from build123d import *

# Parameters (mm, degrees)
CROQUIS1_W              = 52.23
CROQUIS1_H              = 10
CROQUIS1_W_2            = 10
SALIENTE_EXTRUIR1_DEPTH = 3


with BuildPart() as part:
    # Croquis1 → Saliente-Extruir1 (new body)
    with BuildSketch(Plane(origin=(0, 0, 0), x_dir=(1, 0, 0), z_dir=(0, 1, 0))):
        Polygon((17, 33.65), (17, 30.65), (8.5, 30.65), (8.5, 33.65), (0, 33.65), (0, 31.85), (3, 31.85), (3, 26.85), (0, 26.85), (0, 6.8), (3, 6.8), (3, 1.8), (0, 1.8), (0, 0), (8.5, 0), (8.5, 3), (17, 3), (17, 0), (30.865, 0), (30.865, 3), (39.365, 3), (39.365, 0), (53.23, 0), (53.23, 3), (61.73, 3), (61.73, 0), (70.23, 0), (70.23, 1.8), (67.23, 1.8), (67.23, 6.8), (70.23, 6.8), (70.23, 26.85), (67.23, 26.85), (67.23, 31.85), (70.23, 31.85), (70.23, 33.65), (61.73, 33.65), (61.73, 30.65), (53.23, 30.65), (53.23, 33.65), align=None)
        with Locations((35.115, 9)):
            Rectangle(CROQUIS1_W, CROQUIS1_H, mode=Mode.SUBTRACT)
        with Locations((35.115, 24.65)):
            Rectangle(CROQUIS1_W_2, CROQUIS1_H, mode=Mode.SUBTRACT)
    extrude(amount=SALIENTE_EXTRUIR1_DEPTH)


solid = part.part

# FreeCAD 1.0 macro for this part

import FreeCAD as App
import Part
import Sketcher

doc = App.newDocument("Part")
body = doc.addObject("PartDesign::Body", "Body")

sketch1 = doc.addObject("Sketcher::SketchObject", "Sketch")
body.addObject(sketch1)
sketch1.AttachmentSupport = (doc.XZ_Plane, [""])
sketch1.MapMode = "FlatFace"
sketch1.addGeometry(Part.LineSegment(App.Vector(17, -33.6, 0), App.Vector(17, -30.6, 0)), False)
sketch1.addGeometry(Part.LineSegment(App.Vector(17, -30.6, 0), App.Vector(8.5, -30.6, 0)), False)
sketch1.addGeometry(Part.LineSegment(App.Vector(8.5, -30.6, 0), App.Vector(8.5, -33.6, 0)), False)
sketch1.addGeometry(Part.LineSegment(App.Vector(8.5, -33.6, 0), App.Vector(0, -33.6, 0)), False)
sketch1.addGeometry(Part.LineSegment(App.Vector(0, -33.6, 0), App.Vector(0, -31.9, 0)), False)
sketch1.addGeometry(Part.LineSegment(App.Vector(0, -31.9, 0), App.Vector(3, -31.9, 0)), False)
sketch1.addGeometry(Part.LineSegment(App.Vector(3, -31.9, 0), App.Vector(3, -26.9, 0)), False)
sketch1.addGeometry(Part.LineSegment(App.Vector(3, -26.9, 0), App.Vector(0, -26.9, 0)), False)
sketch1.addGeometry(Part.LineSegment(App.Vector(0, -26.9, 0), App.Vector(0, -6.8, 0)), False)
sketch1.addGeometry(Part.LineSegment(App.Vector(0, -6.8, 0), App.Vector(3, -6.8, 0)), False)
sketch1.addGeometry(Part.LineSegment(App.Vector(3, -6.8, 0), App.Vector(3, -1.8, 0)), False)
sketch1.addGeometry(Part.LineSegment(App.Vector(3, -1.8, 0), App.Vector(0, -1.8, 0)), False)
sketch1.addGeometry(Part.LineSegment(App.Vector(0, -1.8, 0), App.Vector(0, 0, 0)), False)
sketch1.addGeometry(Part.LineSegment(App.Vector(0, 0, 0), App.Vector(8.5, 0, 0)), False)
sketch1.addGeometry(Part.LineSegment(App.Vector(8.5, 0, 0), App.Vector(8.5, -3, 0)), False)
sketch1.addGeometry(Part.LineSegment(App.Vector(8.5, -3, 0), App.Vector(17, -3, 0)), False)
sketch1.addGeometry(Part.LineSegment(App.Vector(17, -3, 0), App.Vector(17, 0, 0)), False)
sketch1.addGeometry(Part.LineSegment(App.Vector(17, 0, 0), App.Vector(30.9, 0, 0)), False)
sketch1.addGeometry(Part.LineSegment(App.Vector(30.9, 0, 0), App.Vector(30.9, -3, 0)), False)
sketch1.addGeometry(Part.LineSegment(App.Vector(30.9, -3, 0), App.Vector(39.4, -3, 0)), False)
sketch1.addGeometry(Part.LineSegment(App.Vector(39.4, -3, 0), App.Vector(39.4, 0, 0)), False)
sketch1.addGeometry(Part.LineSegment(App.Vector(39.4, 0, 0), App.Vector(53.2, 0, 0)), False)
sketch1.addGeometry(Part.LineSegment(App.Vector(53.2, 0, 0), App.Vector(53.2, -3, 0)), False)
sketch1.addGeometry(Part.LineSegment(App.Vector(53.2, -3, 0), App.Vector(61.7, -3, 0)), False)
sketch1.addGeometry(Part.LineSegment(App.Vector(61.7, -3, 0), App.Vector(61.7, 0, 0)), False)
sketch1.addGeometry(Part.LineSegment(App.Vector(61.7, 0, 0), App.Vector(70.2, 0, 0)), False)
sketch1.addGeometry(Part.LineSegment(App.Vector(70.2, 0, 0), App.Vector(70.2, -1.8, 0)), False)
sketch1.addGeometry(Part.LineSegment(App.Vector(70.2, -1.8, 0), App.Vector(67.2, -1.8, 0)), False)
sketch1.addGeometry(Part.LineSegment(App.Vector(67.2, -1.8, 0), App.Vector(67.2, -6.8, 0)), False)
sketch1.addGeometry(Part.LineSegment(App.Vector(67.2, -6.8, 0), App.Vector(70.2, -6.8, 0)), False)
sketch1.addGeometry(Part.LineSegment(App.Vector(70.2, -6.8, 0), App.Vector(70.2, -26.9, 0)), False)
sketch1.addGeometry(Part.LineSegment(App.Vector(70.2, -26.9, 0), App.Vector(67.2, -26.9, 0)), False)
sketch1.addGeometry(Part.LineSegment(App.Vector(67.2, -26.9, 0), App.Vector(67.2, -31.9, 0)), False)
sketch1.addGeometry(Part.LineSegment(App.Vector(67.2, -31.9, 0), App.Vector(70.2, -31.9, 0)), False)
sketch1.addGeometry(Part.LineSegment(App.Vector(70.2, -31.9, 0), App.Vector(70.2, -33.6, 0)), False)
sketch1.addGeometry(Part.LineSegment(App.Vector(70.2, -33.6, 0), App.Vector(61.7, -33.6, 0)), False)
sketch1.addGeometry(Part.LineSegment(App.Vector(61.7, -33.6, 0), App.Vector(61.7, -30.6, 0)), False)
sketch1.addGeometry(Part.LineSegment(App.Vector(61.7, -30.6, 0), App.Vector(53.2, -30.6, 0)), False)
sketch1.addGeometry(Part.LineSegment(App.Vector(53.2, -30.6, 0), App.Vector(53.2, -33.6, 0)), False)
sketch1.addGeometry(Part.LineSegment(App.Vector(53.2, -33.6, 0), App.Vector(17, -33.6, 0)), False)
sketch1.addGeometry(Part.LineSegment(App.Vector(61.2, -4, 0), App.Vector(9, -4, 0)), False)
sketch1.addGeometry(Part.LineSegment(App.Vector(9, -4, 0), App.Vector(9, -14, 0)), False)
sketch1.addGeometry(Part.LineSegment(App.Vector(9, -14, 0), App.Vector(61.2, -14, 0)), False)
sketch1.addGeometry(Part.LineSegment(App.Vector(61.2, -14, 0), App.Vector(61.2, -4, 0)), False)
sketch1.addGeometry(Part.LineSegment(App.Vector(40.1, -19.6, 0), App.Vector(30.1, -19.6, 0)), False)
sketch1.addGeometry(Part.LineSegment(App.Vector(30.1, -19.6, 0), App.Vector(30.1, -29.6, 0)), False)
sketch1.addGeometry(Part.LineSegment(App.Vector(30.1, -29.6, 0), App.Vector(40.1, -29.6, 0)), False)
sketch1.addGeometry(Part.LineSegment(App.Vector(40.1, -29.6, 0), App.Vector(40.1, -19.6, 0)), False)
sketch1.addConstraint(Sketcher.Constraint("Coincident", 0, 2, 1, 1))
sketch1.addConstraint(Sketcher.Constraint("Coincident", 1, 2, 2, 1))
sketch1.addConstraint(Sketcher.Constraint("Coincident", 2, 2, 3, 1))
sketch1.addConstraint(Sketcher.Constraint("Coincident", 3, 2, 4, 1))
sketch1.addConstraint(Sketcher.Constraint("Coincident", 4, 2, 5, 1))
sketch1.addConstraint(Sketcher.Constraint("Coincident", 5, 2, 6, 1))
sketch1.addConstraint(Sketcher.Constraint("Coincident", 6, 2, 7, 1))
sketch1.addConstraint(Sketcher.Constraint("Coincident", 7, 2, 8, 1))
sketch1.addConstraint(Sketcher.Constraint("Coincident", 8, 2, 9, 1))
sketch1.addConstraint(Sketcher.Constraint("Coincident", 9, 2, 10, 1))
sketch1.addConstraint(Sketcher.Constraint("Coincident", 10, 2, 11, 1))
sketch1.addConstraint(Sketcher.Constraint("Coincident", 11, 2, 12, 1))
sketch1.addConstraint(Sketcher.Constraint("Coincident", 12, 2, 13, 1))
sketch1.addConstraint(Sketcher.Constraint("Coincident", 13, 2, 14, 1))
sketch1.addConstraint(Sketcher.Constraint("Coincident", 14, 2, 15, 1))
sketch1.addConstraint(Sketcher.Constraint("Coincident", 15, 2, 16, 1))
sketch1.addConstraint(Sketcher.Constraint("Coincident", 16, 2, 17, 1))
sketch1.addConstraint(Sketcher.Constraint("Coincident", 17, 2, 18, 1))
sketch1.addConstraint(Sketcher.Constraint("Coincident", 18, 2, 19, 1))
sketch1.addConstraint(Sketcher.Constraint("Coincident", 19, 2, 20, 1))
sketch1.addConstraint(Sketcher.Constraint("Coincident", 20, 2, 21, 1))
sketch1.addConstraint(Sketcher.Constraint("Coincident", 21, 2, 22, 1))
sketch1.addConstraint(Sketcher.Constraint("Coincident", 22, 2, 23, 1))
sketch1.addConstraint(Sketcher.Constraint("Coincident", 23, 2, 24, 1))
sketch1.addConstraint(Sketcher.Constraint("Coincident", 24, 2, 25, 1))
sketch1.addConstraint(Sketcher.Constraint("Coincident", 25, 2, 26, 1))
sketch1.addConstraint(Sketcher.Constraint("Coincident", 26, 2, 27, 1))
sketch1.addConstraint(Sketcher.Constraint("Coincident", 27, 2, 28, 1))
sketch1.addConstraint(Sketcher.Constraint("Coincident", 28, 2, 29, 1))
sketch1.addConstraint(Sketcher.Constraint("Coincident", 29, 2, 30, 1))
sketch1.addConstraint(Sketcher.Constraint("Coincident", 30, 2, 31, 1))
sketch1.addConstraint(Sketcher.Constraint("Coincident", 31, 2, 32, 1))
sketch1.addConstraint(Sketcher.Constraint("Coincident", 32, 2, 33, 1))
sketch1.addConstraint(Sketcher.Constraint("Coincident", 33, 2, 34, 1))
sketch1.addConstraint(Sketcher.Constraint("Coincident", 34, 2, 35, 1))
sketch1.addConstraint(Sketcher.Constraint("Coincident", 35, 2, 36, 1))
sketch1.addConstraint(Sketcher.Constraint("Coincident", 36, 2, 37, 1))
sketch1.addConstraint(Sketcher.Constraint("Coincident", 37, 2, 38, 1))
sketch1.addConstraint(Sketcher.Constraint("Coincident", 38, 2, 39, 1))
sketch1.addConstraint(Sketcher.Constraint("Coincident", 39, 2, 0, 1))
sketch1.addConstraint(Sketcher.Constraint("Coincident", 40, 2, 41, 1))
sketch1.addConstraint(Sketcher.Constraint("Coincident", 41, 2, 42, 1))
sketch1.addConstraint(Sketcher.Constraint("Coincident", 42, 2, 43, 1))
sketch1.addConstraint(Sketcher.Constraint("Coincident", 43, 2, 40, 1))
sketch1.addConstraint(Sketcher.Constraint("Coincident", 44, 2, 45, 1))
sketch1.addConstraint(Sketcher.Constraint("Coincident", 45, 2, 46, 1))
sketch1.addConstraint(Sketcher.Constraint("Coincident", 46, 2, 47, 1))
sketch1.addConstraint(Sketcher.Constraint("Coincident", 47, 2, 44, 1))
sketch1.addConstraint(Sketcher.Constraint("Vertical", 0))
sketch1.addConstraint(Sketcher.Constraint("Horizontal", 1))
sketch1.addConstraint(Sketcher.Constraint("Vertical", 2))
sketch1.addConstraint(Sketcher.Constraint("Horizontal", 3))
sketch1.addConstraint(Sketcher.Constraint("Vertical", 4))
sketch1.addConstraint(Sketcher.Constraint("Horizontal", 5))
sketch1.addConstraint(Sketcher.Constraint("Vertical", 6))
sketch1.addConstraint(Sketcher.Constraint("Horizontal", 7))
sketch1.addConstraint(Sketcher.Constraint("Vertical", 8))
sketch1.addConstraint(Sketcher.Constraint("Horizontal", 9))
sketch1.addConstraint(Sketcher.Constraint("Vertical", 10))
sketch1.addConstraint(Sketcher.Constraint("Horizontal", 11))
sketch1.addConstraint(Sketcher.Constraint("Vertical", 12))
sketch1.addConstraint(Sketcher.Constraint("Horizontal", 13))
sketch1.addConstraint(Sketcher.Constraint("Vertical", 14))
sketch1.addConstraint(Sketcher.Constraint("Horizontal", 15))
sketch1.addConstraint(Sketcher.Constraint("Vertical", 16))
sketch1.addConstraint(Sketcher.Constraint("Horizontal", 17))
sketch1.addConstraint(Sketcher.Constraint("Vertical", 18))
sketch1.addConstraint(Sketcher.Constraint("Horizontal", 19))
sketch1.addConstraint(Sketcher.Constraint("Vertical", 20))
sketch1.addConstraint(Sketcher.Constraint("Horizontal", 21))
sketch1.addConstraint(Sketcher.Constraint("Vertical", 22))
sketch1.addConstraint(Sketcher.Constraint("Horizontal", 23))
sketch1.addConstraint(Sketcher.Constraint("Vertical", 24))
sketch1.addConstraint(Sketcher.Constraint("Horizontal", 25))
sketch1.addConstraint(Sketcher.Constraint("Vertical", 26))
sketch1.addConstraint(Sketcher.Constraint("Horizontal", 27))
sketch1.addConstraint(Sketcher.Constraint("Vertical", 28))
sketch1.addConstraint(Sketcher.Constraint("Horizontal", 29))
sketch1.addConstraint(Sketcher.Constraint("Vertical", 30))
sketch1.addConstraint(Sketcher.Constraint("Horizontal", 31))
sketch1.addConstraint(Sketcher.Constraint("Vertical", 32))
sketch1.addConstraint(Sketcher.Constraint("Horizontal", 33))
sketch1.addConstraint(Sketcher.Constraint("Vertical", 34))
sketch1.addConstraint(Sketcher.Constraint("Horizontal", 35))
sketch1.addConstraint(Sketcher.Constraint("Vertical", 36))
sketch1.addConstraint(Sketcher.Constraint("Horizontal", 37))
sketch1.addConstraint(Sketcher.Constraint("Vertical", 38))
sketch1.addConstraint(Sketcher.Constraint("Horizontal", 39))
sketch1.addConstraint(Sketcher.Constraint("Horizontal", 40))
sketch1.addConstraint(Sketcher.Constraint("Vertical", 41))
sketch1.addConstraint(Sketcher.Constraint("Horizontal", 42))
sketch1.addConstraint(Sketcher.Constraint("Vertical", 43))
sketch1.addConstraint(Sketcher.Constraint("Horizontal", 44))
sketch1.addConstraint(Sketcher.Constraint("Vertical", 45))
sketch1.addConstraint(Sketcher.Constraint("Horizontal", 46))
sketch1.addConstraint(Sketcher.Constraint("Vertical", 47))
sketch1.addConstraint(Sketcher.Constraint("Coincident", 12, 2, -1, 1))
sketch1.addConstraint(Sketcher.Constraint("PointOnObject", 3, 2, -2))
sketch1.addConstraint(Sketcher.Constraint("PointOnObject", 7, 2, -2))
sketch1.addConstraint(Sketcher.Constraint("PointOnObject", 16, 2, -1))
sketch1.addConstraint(Sketcher.Constraint("PointOnObject", 20, 2, -1))
sketch1.addConstraint(Sketcher.Constraint("PointOnObject", 24, 2, -1))
sketch1.addConstraint(Sketcher.Constraint("Horizontal", 15, 2, 18, 2))
sketch1.addConstraint(Sketcher.Constraint("Horizontal", 19, 2, 22, 2))
sketch1.addConstraint(Sketcher.Constraint("Horizontal", 11, 2, 26, 2))
sketch1.addConstraint(Sketcher.Constraint("Horizontal", 9, 2, 28, 2))
sketch1.addConstraint(Sketcher.Constraint("Horizontal", 7, 2, 30, 2))
sketch1.addConstraint(Sketcher.Constraint("Horizontal", 5, 2, 32, 2))
sketch1.addConstraint(Sketcher.Constraint("Horizontal", 3, 2, 34, 2))
sketch1.addConstraint(Sketcher.Constraint("Horizontal", 1, 2, 36, 2))
sketch1.addConstraint(Sketcher.Constraint("Horizontal", 35, 2, 38, 2))
sketch1.addConstraint(Sketcher.Constraint("Vertical", 6, 2, 9, 2))
sketch1.addConstraint(Sketcher.Constraint("Vertical", 2, 2, 13, 2))
sketch1.addConstraint(Sketcher.Constraint("Vertical", 0, 2, 15, 2))
sketch1.addConstraint(Sketcher.Constraint("Vertical", 26, 2, 29, 2))
sketch1.addConstraint(Sketcher.Constraint("Vertical", 28, 2, 31, 2))
sketch1.addConstraint(Sketcher.Constraint("Vertical", 30, 2, 33, 2))
sketch1.addConstraint(Sketcher.Constraint("Vertical", 24, 2, 35, 2))
sketch1.addConstraint(Sketcher.Constraint("Vertical", 22, 2, 37, 2))
sketch1.addConstraint(Sketcher.Constraint("Equal", 1, 3))
sketch1.addConstraint(Sketcher.Constraint("Equal", 15, 19))
sketch1.addConstraint(Sketcher.Constraint("Equal", 17, 21))
sketch1.addConstraint(Sketcher.Constraint("Equal", 19, 23))
sketch1.addConstraint(Sketcher.Constraint("Equal", 23, 25))
sketch1.addConstraint(Sketcher.Constraint("Equal", 11, 27))
sketch1.addConstraint(Sketcher.Constraint("Equal", 33, 0))
sketch1.addConstraint(Sketcher.Constraint("Equal", 6, 10))
sketch1.addConstraint(Sketcher.Constraint("Equal", 4, 12))
sketch1.addConstraint(Sketcher.Constraint("Equal", 2, 14))
sketch1.addConstraint(Sketcher.Constraint("Equal", 46, 41))
sketch1.addConstraint(Sketcher.Constraint("Equal", 43, 45))
sketch1.addConstraint(Sketcher.Constraint("DistanceX", 5, 1, 5, 2, 3.0))
sketch1.addConstraint(Sketcher.Constraint("DistanceX", 44, 2, 44, 1, 10.0))
sketch1.addConstraint(Sketcher.Constraint("DistanceY", 6, 1, 6, 2, 5.0))
sketch1.addConstraint(Sketcher.Constraint("DistanceX", 1, 2, 1, 1, 8.5))
sketch1.addConstraint(Sketcher.Constraint("DistanceY", 4, 1, 4, 2, 1.8))
sketch1.addConstraint(Sketcher.Constraint("DistanceX", -1, 1, 40, 2, 9.0))
sketch1.addConstraint(Sketcher.Constraint("DistanceY", 40, 2, -1, 1, 4.0))
sketch1.addConstraint(Sketcher.Constraint("DistanceX", 42, 2, 28, 2, 6.0))
sketch1.addConstraint(Sketcher.Constraint("DistanceY", 0, 2, 44, 2, 11.0))
sketch1.addConstraint(Sketcher.Constraint("DistanceX", 39, 2, 39, 1, 36.23))
sketch1.addConstraint(Sketcher.Constraint("DistanceY", 8, 1, 8, 2, 20.05))
sketch1.addConstraint(Sketcher.Constraint("DistanceX", 44, 2, 18, 2, 0.75))
pad1 = doc.addObject("PartDesign::Pad", "Pad")
body.addObject(pad1)
pad1.Profile = sketch1
pad1.Length = 3
pad1.Reversed = True

doc.recompute()
